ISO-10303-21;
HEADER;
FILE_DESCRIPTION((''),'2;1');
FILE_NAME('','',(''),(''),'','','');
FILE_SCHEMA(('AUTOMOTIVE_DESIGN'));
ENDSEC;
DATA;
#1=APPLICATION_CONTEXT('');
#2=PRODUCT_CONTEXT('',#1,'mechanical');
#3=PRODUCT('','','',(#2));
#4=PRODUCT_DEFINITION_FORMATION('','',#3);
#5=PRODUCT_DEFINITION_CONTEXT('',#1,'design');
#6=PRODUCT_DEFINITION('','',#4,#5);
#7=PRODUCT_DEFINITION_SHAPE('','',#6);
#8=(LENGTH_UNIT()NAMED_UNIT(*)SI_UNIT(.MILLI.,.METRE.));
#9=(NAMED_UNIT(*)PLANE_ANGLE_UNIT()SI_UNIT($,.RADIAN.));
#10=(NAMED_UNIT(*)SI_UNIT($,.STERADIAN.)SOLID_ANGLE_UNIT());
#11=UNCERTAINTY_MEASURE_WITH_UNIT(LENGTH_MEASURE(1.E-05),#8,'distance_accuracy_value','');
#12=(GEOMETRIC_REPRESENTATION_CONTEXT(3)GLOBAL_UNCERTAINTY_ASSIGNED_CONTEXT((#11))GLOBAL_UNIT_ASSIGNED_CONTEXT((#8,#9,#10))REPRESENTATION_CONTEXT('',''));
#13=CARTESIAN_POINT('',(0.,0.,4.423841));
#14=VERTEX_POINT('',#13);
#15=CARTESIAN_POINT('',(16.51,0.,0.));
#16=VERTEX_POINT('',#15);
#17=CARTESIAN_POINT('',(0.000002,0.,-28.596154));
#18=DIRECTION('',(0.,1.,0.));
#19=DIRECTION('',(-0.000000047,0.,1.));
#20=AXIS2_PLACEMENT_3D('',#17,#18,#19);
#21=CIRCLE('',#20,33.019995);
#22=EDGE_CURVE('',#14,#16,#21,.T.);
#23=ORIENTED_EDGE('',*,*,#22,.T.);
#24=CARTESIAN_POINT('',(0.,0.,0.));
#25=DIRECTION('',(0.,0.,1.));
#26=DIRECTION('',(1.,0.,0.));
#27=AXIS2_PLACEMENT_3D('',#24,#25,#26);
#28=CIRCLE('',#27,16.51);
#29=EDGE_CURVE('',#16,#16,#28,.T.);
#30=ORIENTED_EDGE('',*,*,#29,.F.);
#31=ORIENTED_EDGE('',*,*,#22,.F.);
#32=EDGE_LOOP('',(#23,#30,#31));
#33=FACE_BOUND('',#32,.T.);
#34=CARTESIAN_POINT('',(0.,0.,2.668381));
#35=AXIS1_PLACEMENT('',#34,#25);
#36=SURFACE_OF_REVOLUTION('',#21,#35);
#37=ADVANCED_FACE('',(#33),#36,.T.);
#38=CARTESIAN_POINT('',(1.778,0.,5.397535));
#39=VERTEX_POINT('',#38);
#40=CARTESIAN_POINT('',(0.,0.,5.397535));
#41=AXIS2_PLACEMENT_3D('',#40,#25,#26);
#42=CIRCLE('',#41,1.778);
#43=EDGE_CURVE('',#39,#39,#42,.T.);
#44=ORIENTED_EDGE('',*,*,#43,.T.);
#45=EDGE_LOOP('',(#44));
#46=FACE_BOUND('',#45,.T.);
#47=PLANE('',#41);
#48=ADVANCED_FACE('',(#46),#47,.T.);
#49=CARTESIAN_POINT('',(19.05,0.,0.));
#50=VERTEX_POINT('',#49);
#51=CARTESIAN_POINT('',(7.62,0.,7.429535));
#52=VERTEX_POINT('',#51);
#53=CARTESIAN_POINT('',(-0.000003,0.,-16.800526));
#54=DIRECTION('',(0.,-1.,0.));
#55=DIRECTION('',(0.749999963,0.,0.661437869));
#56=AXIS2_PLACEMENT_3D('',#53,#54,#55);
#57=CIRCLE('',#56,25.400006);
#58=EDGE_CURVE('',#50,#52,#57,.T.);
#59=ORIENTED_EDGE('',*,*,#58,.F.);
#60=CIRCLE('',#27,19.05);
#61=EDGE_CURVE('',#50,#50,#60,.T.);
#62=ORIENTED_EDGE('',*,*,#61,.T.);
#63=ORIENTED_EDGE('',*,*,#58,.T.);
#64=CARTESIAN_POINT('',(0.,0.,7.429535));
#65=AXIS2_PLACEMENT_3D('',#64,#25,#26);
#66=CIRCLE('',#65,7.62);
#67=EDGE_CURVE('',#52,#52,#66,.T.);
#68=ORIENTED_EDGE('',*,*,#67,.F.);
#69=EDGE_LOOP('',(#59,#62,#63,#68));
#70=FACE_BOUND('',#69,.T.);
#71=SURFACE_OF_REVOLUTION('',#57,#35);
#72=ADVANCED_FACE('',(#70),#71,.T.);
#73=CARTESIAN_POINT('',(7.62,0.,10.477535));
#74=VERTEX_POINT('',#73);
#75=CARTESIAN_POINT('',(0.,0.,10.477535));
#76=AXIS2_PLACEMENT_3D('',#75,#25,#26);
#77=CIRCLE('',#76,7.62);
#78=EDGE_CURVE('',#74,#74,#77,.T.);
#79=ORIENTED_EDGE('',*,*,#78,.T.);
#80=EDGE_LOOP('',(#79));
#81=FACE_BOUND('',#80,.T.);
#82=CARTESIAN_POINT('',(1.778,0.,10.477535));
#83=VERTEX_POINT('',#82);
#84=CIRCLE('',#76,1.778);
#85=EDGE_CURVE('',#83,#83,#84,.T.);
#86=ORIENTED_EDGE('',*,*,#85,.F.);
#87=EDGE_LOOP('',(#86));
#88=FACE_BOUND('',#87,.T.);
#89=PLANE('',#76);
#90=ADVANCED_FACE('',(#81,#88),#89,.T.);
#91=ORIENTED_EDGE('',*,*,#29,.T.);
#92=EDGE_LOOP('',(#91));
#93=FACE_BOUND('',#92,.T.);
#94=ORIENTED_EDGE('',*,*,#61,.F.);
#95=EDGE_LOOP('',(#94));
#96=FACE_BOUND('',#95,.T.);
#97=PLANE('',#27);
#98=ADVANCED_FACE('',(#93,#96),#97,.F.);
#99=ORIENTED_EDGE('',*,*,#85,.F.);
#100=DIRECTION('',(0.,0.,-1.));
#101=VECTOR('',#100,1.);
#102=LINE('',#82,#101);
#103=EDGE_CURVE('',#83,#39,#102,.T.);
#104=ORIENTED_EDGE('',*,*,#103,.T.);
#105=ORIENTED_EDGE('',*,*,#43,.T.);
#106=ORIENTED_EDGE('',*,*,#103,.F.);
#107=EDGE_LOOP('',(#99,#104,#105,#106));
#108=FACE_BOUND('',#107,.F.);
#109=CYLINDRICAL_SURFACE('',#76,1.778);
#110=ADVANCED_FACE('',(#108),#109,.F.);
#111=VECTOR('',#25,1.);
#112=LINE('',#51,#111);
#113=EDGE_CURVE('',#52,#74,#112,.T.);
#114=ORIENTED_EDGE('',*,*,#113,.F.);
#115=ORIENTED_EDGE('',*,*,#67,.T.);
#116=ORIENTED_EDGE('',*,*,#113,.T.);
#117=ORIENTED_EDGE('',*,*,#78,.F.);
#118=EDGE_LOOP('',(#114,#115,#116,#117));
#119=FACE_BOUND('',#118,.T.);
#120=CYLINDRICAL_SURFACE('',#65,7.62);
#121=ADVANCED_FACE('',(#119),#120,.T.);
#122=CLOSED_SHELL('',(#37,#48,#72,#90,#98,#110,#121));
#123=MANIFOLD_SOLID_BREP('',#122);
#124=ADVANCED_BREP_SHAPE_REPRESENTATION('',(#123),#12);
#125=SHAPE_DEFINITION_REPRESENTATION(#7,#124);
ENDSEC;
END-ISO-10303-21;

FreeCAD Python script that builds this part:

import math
import FreeCAD as App
import Part
import Sketcher
from FreeCAD import Vector
Q = App.Units.Quantity

doc = App.newDocument("Part")
body = doc.addObject("PartDesign::Body", "Body")

# Sketch on XZ plane
sketch1 = body.newObject("Sketcher::SketchObject", "Sketch")
sketch1.AttachmentSupport = (doc.getObject("XZ_Plane"), [""])
sketch1.MapMode = "FlatFace"
sketch1.addGeometry([
    Part.ArcOfCircle(Part.Circle(Vector(0, -28.6, 0), Vector(0, 0, 1), 33), math.radians(60), math.radians(90)),  # 0
    Part.LineSegment(Vector(16.5, 0, 0), Vector(19.1, 0, 0)),  # 1
    Part.ArcOfCircle(Part.Circle(Vector(0, -16.8, 0), Vector(0, 0, 1), 25.4), math.radians(41), math.radians(73)),  # 2
    Part.LineSegment(Vector(7.6, 7.4, 0), Vector(7.6, 10.5, 0)),  # 3
    Part.LineSegment(Vector(7.6, 10.5, 0), Vector(0, 10.5, 0)),  # 4
    Part.LineSegment(Vector(0, 10.5, 0), Vector(0, 4.4, 0)),  # 5
], False)
sketch1.addConstraint([
    Sketcher.Constraint("Coincident", 0, 1, 1, 1),
    Sketcher.Constraint("Coincident", 1, 2, 2, 1),
    Sketcher.Constraint("Coincident", 2, 2, 3, 1),
    Sketcher.Constraint("Coincident", 3, 2, 4, 1),
    Sketcher.Constraint("Coincident", 4, 2, 5, 1),
    Sketcher.Constraint("Coincident", 5, 2, 0, 2),
    Sketcher.Constraint("Horizontal", 1),
    Sketcher.Constraint("Vertical", 3),
    Sketcher.Constraint("Horizontal", 4),
    Sketcher.Constraint("Vertical", 5),
    Sketcher.Constraint("PointOnObject", 0, 3, -2),
    Sketcher.Constraint("PointOnObject", 0, 1, -1),
    Sketcher.Constraint("PointOnObject", 4, 2, -2),
    Sketcher.Constraint("Radius", 0, Q("1.2999998 in")),
    Sketcher.Constraint("DistanceX", 1, 1, 1, 2, Q("0.1 in")),
    Sketcher.Constraint("DistanceX", 4, 2, 4, 1, Q("0.3 in")),
    Sketcher.Constraint("DistanceY", 3, 1, 3, 2, Q("0.12 in")),
    Sketcher.Constraint("DistanceX", 2, 3, 2, 2, Q("0.3000001 in")),
    Sketcher.Constraint("DistanceX", -1, 1, 0, 1, Q("0.65 in")),
    Sketcher.Constraint("Radius", 2, Q("25.400006 mm")),
])
revolution = body.newObject("PartDesign::Revolution", "Revolution")
revolution.Profile = sketch1
revolution.ReferenceAxis = (sketch1, ["V_Axis"])
revolution.Angle = 360

# Sketch on XY plane
sketch2 = body.newObject("Sketcher::SketchObject", "Sketch001")
sketch2.AttachmentSupport = (doc.getObject("XY_Plane"), [""])
sketch2.MapMode = "FlatFace"
sketch2.AttachmentOffset = App.Placement(Vector(0, 0, 10.477535), App.Rotation())
sketch2.addGeometry(Part.Circle(Vector(0, 0, 0), Vector(0, 0, 1), 1.8), False)
sketch2.addConstraint([
    Sketcher.Constraint("Coincident", 0, 3, -1, 1),
    Sketcher.Constraint("Diameter", 0, Q("0.14 in")),
])
pocket1 = body.newObject("PartDesign::Pocket", "Pocket")
pocket1.Profile = sketch2
pocket1.Length = Q("0.2 in")

doc.recompute()
